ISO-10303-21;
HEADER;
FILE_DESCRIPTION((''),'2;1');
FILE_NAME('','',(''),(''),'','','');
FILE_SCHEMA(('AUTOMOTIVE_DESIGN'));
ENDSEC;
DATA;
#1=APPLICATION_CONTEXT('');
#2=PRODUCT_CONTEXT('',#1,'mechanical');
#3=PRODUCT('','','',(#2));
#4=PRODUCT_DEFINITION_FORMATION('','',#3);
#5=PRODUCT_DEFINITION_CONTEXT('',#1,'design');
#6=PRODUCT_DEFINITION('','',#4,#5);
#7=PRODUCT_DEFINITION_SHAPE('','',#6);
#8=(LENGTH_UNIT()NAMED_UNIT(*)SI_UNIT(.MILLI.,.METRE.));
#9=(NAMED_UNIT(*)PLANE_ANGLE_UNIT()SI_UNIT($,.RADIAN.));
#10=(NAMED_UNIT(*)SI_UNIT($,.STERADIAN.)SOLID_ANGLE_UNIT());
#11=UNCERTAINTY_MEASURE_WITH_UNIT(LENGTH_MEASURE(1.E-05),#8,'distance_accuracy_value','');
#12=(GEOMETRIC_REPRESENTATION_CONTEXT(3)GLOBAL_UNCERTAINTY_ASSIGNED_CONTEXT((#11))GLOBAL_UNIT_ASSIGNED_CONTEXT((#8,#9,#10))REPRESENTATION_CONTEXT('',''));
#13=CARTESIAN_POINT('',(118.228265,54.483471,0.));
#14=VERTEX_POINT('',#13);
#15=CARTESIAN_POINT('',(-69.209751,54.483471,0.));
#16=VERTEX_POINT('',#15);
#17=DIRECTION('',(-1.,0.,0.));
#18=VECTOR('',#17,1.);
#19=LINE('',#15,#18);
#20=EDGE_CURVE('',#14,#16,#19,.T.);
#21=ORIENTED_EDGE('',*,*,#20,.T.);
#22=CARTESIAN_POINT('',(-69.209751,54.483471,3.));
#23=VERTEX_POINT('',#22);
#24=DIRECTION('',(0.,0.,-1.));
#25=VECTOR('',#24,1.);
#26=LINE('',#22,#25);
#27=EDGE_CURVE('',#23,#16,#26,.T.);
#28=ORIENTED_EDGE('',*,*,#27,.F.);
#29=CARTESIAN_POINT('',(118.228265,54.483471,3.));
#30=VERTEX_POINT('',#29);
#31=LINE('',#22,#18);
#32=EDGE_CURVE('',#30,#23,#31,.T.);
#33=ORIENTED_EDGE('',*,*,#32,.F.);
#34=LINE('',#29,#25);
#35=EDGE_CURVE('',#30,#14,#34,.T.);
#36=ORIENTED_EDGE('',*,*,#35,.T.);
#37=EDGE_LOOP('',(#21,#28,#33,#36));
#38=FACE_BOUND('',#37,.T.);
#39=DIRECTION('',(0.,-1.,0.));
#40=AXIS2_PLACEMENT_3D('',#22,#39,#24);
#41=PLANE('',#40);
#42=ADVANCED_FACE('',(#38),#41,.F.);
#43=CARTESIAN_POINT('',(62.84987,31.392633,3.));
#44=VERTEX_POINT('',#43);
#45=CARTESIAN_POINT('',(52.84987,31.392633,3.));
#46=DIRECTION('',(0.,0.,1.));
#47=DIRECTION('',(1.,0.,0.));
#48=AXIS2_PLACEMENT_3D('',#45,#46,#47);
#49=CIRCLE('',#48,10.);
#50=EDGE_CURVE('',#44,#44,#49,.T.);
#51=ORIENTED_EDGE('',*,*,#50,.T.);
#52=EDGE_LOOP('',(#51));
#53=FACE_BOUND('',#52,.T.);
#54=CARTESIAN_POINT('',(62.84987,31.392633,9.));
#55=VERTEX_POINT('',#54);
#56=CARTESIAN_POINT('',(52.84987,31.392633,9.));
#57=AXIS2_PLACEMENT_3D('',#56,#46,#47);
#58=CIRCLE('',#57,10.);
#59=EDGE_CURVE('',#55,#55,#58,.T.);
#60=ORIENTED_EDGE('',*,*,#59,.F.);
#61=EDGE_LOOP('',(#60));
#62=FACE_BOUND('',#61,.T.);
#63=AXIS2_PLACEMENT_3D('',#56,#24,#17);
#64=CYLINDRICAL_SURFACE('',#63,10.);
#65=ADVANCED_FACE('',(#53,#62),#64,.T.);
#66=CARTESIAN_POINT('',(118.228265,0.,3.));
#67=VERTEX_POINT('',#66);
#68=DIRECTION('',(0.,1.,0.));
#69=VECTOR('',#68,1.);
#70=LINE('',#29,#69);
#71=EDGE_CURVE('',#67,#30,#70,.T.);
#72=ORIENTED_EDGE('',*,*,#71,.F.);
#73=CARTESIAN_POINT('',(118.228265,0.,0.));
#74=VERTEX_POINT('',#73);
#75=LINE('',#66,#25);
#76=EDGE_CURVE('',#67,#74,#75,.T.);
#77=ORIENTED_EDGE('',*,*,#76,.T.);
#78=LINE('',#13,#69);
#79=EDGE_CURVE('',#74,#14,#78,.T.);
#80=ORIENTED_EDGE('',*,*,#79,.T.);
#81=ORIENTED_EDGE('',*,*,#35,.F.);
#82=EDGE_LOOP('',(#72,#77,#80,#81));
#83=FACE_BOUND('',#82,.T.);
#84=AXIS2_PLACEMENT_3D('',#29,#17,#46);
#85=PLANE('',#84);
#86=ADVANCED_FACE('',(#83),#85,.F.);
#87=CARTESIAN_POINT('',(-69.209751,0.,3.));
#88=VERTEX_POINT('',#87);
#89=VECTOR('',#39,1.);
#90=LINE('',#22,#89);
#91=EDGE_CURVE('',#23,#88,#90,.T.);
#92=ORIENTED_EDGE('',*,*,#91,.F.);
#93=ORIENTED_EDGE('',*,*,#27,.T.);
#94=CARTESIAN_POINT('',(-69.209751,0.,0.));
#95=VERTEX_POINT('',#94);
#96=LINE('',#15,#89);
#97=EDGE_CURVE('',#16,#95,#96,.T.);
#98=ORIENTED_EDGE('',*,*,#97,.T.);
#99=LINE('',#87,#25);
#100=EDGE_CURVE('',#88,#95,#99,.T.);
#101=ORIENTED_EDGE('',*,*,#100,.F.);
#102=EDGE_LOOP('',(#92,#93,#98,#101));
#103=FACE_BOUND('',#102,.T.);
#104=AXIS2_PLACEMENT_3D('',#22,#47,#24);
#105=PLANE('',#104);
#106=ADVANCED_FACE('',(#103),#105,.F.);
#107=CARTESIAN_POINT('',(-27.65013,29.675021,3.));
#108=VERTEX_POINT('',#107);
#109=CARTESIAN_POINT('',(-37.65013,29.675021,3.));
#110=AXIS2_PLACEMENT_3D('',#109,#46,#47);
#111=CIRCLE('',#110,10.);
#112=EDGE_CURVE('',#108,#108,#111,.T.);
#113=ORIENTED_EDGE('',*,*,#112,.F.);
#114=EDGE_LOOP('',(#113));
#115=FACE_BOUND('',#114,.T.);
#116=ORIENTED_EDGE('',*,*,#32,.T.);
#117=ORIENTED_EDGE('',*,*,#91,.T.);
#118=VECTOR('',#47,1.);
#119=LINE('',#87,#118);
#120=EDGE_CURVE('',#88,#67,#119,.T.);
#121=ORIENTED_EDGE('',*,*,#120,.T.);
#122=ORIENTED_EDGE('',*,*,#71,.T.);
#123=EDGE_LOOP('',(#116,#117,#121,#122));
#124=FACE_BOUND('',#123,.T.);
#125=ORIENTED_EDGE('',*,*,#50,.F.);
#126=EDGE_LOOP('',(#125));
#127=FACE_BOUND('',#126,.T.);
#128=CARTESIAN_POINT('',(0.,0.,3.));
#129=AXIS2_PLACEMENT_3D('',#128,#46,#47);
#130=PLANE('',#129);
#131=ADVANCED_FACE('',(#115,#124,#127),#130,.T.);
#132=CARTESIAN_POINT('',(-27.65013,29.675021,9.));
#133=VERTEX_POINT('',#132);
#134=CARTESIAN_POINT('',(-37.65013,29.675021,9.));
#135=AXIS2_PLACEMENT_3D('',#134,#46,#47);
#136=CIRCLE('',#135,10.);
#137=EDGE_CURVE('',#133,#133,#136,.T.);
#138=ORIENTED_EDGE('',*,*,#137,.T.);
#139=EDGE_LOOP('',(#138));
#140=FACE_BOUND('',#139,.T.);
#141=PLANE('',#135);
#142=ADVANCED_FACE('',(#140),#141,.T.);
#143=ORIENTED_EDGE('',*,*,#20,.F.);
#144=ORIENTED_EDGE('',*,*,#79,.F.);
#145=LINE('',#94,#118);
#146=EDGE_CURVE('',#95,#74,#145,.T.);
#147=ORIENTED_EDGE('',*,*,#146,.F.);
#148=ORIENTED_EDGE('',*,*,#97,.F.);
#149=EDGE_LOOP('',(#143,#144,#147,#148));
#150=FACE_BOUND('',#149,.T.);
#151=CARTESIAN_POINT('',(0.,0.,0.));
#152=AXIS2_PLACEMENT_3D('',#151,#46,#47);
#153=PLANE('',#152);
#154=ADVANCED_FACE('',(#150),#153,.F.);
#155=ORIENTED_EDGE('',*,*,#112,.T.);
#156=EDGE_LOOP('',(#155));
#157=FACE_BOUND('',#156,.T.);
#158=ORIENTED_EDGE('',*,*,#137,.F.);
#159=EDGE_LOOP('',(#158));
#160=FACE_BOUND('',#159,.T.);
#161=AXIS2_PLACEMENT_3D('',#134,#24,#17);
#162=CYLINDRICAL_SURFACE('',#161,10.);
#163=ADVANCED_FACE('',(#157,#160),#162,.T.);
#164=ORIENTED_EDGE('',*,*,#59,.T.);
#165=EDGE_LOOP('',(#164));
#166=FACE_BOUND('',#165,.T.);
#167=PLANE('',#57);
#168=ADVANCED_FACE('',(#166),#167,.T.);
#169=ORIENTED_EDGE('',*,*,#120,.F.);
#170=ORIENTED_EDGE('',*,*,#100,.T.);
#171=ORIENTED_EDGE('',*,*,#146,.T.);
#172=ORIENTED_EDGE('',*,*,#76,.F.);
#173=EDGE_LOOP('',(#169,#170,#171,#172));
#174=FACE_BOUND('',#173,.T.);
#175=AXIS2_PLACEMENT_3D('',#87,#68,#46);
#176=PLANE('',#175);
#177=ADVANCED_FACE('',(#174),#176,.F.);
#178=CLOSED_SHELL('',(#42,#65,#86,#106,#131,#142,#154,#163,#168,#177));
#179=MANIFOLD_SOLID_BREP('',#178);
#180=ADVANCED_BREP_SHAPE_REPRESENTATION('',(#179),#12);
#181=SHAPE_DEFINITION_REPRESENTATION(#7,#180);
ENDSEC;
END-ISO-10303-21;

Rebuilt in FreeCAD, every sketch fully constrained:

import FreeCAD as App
import Part
import Sketcher

V = App.Vector

doc = App.newDocument("Part")
body = doc.addObject("PartDesign::Body", "Body")

# Sketch on XY plane
sketch1 = body.newObject("Sketcher::SketchObject", "Sketch")
sketch1.AttachmentSupport = (doc.getObject("XY_Plane"), [""])
sketch1.MapMode = "FlatFace"
sketch1.addGeometry(Part.LineSegment(V(-69.209751, 54.483471, 0), V(-69.209751, 0, 0)), False)
sketch1.addGeometry(Part.LineSegment(V(-69.209751, 0, 0), V(118.228265, 0, 0)), False)
sketch1.addGeometry(Part.LineSegment(V(118.228265, 0, 0), V(118.228265, 54.483471, 0)), False)
sketch1.addGeometry(Part.LineSegment(V(118.228265, 54.483471, 0), V(-69.209751, 54.483471, 0)), False)
sketch1.addConstraint(Sketcher.Constraint("Coincident", 0, 2, 1, 1))
sketch1.addConstraint(Sketcher.Constraint("Coincident", 1, 2, 2, 1))
sketch1.addConstraint(Sketcher.Constraint("Coincident", 2, 2, 3, 1))
sketch1.addConstraint(Sketcher.Constraint("Coincident", 3, 2, 0, 1))
sketch1.addConstraint(Sketcher.Constraint("Vertical", 0))
sketch1.addConstraint(Sketcher.Constraint("Horizontal", 1))
sketch1.addConstraint(Sketcher.Constraint("Vertical", 2))
sketch1.addConstraint(Sketcher.Constraint("Horizontal", 3))
sketch1.addConstraint(Sketcher.Constraint("PointOnObject", 0, 2, -1))
sketch1.addConstraint(Sketcher.Constraint("DistanceY", 0, 2, 0, 1, 54.483471))
sketch1.addConstraint(Sketcher.Constraint("DistanceX", 1, 1, 1, 2, 187.438017))
sketch1.addConstraint(Sketcher.Constraint("DistanceX", 0, 2, -1, 1, 69.209751))
pad1 = body.newObject("PartDesign::Pad", "Pad")
pad1.Profile = sketch1
pad1.Length = 3

# Sketch on XY plane
sketch2 = body.newObject("Sketcher::SketchObject", "Sketch001")
sketch2.AttachmentSupport = (doc.getObject("XY_Plane"), [""])
sketch2.MapMode = "FlatFace"
sketch2.AttachmentOffset = App.Placement(V(0, 0, 3), App.Rotation())
sketch2.addGeometry(Part.Circle(V(-37.65013, 29.675021, 0), V(0, 0, 1), 10), False)
sketch2.addGeometry(Part.Circle(V(52.84987, 31.392633, 0), V(0, 0, 1), 10), False)
sketch2.addConstraint(Sketcher.Constraint("Equal", 0, 1))
sketch2.addConstraint(Sketcher.Constraint("Diameter", 0, 20.0))
sketch2.addConstraint(Sketcher.Constraint("DistanceX", 0, 3, 1, 3, 90.5))
sketch2.addConstraint(Sketcher.Constraint("DistanceX", 0, 3, -1, 1, 37.65013))
sketch2.addConstraint(Sketcher.Constraint("DistanceY", -1, 1, 0, 3, 29.675021))
sketch2.addConstraint(Sketcher.Constraint("DistanceY", -1, 1, 1, 3, 31.392633))
pad2 = body.newObject("PartDesign::Pad", "Pad001")
pad2.Profile = sketch2
pad2.Length = 6

doc.recompute()
